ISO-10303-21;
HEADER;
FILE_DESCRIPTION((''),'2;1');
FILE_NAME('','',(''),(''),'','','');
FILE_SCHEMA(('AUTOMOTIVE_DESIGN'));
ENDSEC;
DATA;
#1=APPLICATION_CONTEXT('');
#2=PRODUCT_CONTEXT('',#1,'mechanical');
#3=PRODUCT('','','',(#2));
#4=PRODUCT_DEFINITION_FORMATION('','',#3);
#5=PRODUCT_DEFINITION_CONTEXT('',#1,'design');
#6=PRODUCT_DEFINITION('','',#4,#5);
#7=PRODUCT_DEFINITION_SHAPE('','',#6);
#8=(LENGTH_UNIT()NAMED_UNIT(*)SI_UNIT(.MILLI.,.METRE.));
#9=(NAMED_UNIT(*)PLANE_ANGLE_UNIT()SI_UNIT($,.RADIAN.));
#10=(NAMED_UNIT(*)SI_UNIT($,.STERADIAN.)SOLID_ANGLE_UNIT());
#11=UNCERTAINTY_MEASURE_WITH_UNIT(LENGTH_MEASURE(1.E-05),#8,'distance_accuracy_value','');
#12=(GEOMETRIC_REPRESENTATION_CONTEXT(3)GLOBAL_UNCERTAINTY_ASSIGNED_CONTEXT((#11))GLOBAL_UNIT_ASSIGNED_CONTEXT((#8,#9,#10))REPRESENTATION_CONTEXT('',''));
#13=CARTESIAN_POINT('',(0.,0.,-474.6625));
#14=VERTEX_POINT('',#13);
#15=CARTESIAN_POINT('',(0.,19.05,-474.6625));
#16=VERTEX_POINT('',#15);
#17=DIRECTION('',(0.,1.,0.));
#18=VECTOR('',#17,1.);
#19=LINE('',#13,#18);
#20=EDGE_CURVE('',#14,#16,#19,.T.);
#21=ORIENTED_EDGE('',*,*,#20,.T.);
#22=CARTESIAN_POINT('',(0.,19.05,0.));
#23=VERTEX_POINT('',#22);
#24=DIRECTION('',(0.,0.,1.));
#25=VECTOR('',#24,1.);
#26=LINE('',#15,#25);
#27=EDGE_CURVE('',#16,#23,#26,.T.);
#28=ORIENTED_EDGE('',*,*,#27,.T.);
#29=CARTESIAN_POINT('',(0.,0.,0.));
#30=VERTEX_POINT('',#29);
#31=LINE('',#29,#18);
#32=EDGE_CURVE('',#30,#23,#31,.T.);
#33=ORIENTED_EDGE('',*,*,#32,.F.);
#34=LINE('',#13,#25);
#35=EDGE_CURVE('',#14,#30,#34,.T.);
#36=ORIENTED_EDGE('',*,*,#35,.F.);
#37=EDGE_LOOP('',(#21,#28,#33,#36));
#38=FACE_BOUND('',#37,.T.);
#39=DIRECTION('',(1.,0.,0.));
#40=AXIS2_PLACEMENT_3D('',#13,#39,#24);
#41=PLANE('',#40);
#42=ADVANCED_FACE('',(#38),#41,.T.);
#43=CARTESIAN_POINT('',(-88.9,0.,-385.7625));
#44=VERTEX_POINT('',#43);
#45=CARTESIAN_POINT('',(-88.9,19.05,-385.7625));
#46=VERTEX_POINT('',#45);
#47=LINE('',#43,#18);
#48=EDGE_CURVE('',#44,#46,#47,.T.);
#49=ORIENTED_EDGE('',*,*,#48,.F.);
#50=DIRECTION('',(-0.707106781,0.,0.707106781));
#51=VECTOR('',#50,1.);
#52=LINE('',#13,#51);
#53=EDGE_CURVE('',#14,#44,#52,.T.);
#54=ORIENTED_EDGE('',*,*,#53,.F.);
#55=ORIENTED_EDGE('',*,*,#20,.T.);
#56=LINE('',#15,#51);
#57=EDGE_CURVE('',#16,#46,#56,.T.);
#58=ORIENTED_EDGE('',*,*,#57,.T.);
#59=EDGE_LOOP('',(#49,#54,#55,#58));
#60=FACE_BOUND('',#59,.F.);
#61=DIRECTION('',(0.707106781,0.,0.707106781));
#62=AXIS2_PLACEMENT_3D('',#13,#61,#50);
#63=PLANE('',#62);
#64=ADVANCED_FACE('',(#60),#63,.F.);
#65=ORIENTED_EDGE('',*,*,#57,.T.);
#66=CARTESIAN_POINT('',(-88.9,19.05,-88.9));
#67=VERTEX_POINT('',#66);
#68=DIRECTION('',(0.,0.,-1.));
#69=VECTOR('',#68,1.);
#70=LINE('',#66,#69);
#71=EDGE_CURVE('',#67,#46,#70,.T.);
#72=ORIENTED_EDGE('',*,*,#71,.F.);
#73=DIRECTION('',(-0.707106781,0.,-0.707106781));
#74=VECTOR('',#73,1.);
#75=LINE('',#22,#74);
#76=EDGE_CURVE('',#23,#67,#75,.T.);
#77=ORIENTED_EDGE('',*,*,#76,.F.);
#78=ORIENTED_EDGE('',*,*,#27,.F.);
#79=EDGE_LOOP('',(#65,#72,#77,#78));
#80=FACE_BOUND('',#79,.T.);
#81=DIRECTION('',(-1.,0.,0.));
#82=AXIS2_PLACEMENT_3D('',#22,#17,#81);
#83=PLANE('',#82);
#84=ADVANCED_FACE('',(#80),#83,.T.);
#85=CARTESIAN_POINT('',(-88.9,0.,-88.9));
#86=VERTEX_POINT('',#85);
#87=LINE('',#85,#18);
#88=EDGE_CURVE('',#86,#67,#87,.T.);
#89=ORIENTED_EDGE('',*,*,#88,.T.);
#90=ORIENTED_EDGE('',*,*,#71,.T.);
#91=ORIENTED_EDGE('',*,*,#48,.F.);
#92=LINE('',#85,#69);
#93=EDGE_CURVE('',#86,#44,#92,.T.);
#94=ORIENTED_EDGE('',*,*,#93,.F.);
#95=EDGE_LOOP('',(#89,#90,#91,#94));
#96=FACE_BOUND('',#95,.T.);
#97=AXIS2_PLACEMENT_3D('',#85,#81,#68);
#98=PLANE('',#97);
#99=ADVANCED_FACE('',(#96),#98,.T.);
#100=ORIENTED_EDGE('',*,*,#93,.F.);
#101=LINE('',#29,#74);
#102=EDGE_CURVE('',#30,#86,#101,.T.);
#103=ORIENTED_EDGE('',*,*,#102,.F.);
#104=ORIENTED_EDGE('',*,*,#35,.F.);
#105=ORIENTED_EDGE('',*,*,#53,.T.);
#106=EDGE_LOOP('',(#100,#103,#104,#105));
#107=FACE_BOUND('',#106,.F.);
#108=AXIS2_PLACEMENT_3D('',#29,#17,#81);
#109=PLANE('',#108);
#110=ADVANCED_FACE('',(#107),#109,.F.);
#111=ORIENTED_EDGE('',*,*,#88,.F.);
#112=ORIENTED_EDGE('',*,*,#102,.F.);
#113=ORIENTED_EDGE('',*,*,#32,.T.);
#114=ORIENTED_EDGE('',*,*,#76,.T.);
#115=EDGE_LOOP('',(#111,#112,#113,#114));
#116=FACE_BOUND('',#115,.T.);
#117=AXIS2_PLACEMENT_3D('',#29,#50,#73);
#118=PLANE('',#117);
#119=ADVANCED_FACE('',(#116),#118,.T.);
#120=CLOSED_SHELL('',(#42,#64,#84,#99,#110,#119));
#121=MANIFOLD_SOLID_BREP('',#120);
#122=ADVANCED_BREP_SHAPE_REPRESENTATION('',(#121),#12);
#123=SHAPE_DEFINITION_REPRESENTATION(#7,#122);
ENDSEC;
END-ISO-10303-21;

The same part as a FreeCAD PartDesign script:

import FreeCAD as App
import Part
import Sketcher
Q = App.Units.Quantity

doc = App.newDocument("Part")
body = doc.addObject("PartDesign::Body", "Body")

sketch1 = body.newObject("Sketcher::SketchObject", "Sketch")
sketch1.AttachmentSupport = (doc.getObject("XZ_Plane"), [""])
sketch1.MapMode = "FlatFace"
sketch1.addGeometry(Part.LineSegment(App.Vector(-89, -386, 0), App.Vector(-89, -89, 0)), False)
sketch1.addGeometry(Part.LineSegment(App.Vector(-89, -89, 0), App.Vector(0, 0, 0)), False)
sketch1.addGeometry(Part.LineSegment(App.Vector(0, 0, 0), App.Vector(0, -475, 0)), False)
sketch1.addGeometry(Part.LineSegment(App.Vector(0, -475, 0), App.Vector(-89, -386, 0)), False)
sketch1.addConstraint(Sketcher.Constraint("Coincident", 0, 2, 1, 1))
sketch1.addConstraint(Sketcher.Constraint("Coincident", 1, 2, 2, 1))
sketch1.addConstraint(Sketcher.Constraint("Coincident", 2, 2, 3, 1))
sketch1.addConstraint(Sketcher.Constraint("Coincident", 3, 2, 0, 1))
sketch1.addConstraint(Sketcher.Constraint("Vertical", 0))
sketch1.addConstraint(Sketcher.Constraint("Vertical", 2))
sketch1.addConstraint(Sketcher.Constraint("Coincident", 1, 2, -1, 1))
sketch1.addConstraint(Sketcher.Constraint("Perpendicular", 1, 3))
sketch1.addConstraint(Sketcher.Constraint("Equal", 1, 3))
sketch1.addConstraint(Sketcher.Constraint("DistanceX", 0, 2, -1, 1, Q("3.5 in")))
sketch1.addConstraint(Sketcher.Constraint("DistanceY", 2, 2, 2, 1, Q("18.6875 in")))
pad1 = body.newObject("PartDesign::Pad", "Pad")
pad1.Profile = sketch1
pad1.Length = Q("0.75 in")
pad1.Reversed = True

doc.recompute()
